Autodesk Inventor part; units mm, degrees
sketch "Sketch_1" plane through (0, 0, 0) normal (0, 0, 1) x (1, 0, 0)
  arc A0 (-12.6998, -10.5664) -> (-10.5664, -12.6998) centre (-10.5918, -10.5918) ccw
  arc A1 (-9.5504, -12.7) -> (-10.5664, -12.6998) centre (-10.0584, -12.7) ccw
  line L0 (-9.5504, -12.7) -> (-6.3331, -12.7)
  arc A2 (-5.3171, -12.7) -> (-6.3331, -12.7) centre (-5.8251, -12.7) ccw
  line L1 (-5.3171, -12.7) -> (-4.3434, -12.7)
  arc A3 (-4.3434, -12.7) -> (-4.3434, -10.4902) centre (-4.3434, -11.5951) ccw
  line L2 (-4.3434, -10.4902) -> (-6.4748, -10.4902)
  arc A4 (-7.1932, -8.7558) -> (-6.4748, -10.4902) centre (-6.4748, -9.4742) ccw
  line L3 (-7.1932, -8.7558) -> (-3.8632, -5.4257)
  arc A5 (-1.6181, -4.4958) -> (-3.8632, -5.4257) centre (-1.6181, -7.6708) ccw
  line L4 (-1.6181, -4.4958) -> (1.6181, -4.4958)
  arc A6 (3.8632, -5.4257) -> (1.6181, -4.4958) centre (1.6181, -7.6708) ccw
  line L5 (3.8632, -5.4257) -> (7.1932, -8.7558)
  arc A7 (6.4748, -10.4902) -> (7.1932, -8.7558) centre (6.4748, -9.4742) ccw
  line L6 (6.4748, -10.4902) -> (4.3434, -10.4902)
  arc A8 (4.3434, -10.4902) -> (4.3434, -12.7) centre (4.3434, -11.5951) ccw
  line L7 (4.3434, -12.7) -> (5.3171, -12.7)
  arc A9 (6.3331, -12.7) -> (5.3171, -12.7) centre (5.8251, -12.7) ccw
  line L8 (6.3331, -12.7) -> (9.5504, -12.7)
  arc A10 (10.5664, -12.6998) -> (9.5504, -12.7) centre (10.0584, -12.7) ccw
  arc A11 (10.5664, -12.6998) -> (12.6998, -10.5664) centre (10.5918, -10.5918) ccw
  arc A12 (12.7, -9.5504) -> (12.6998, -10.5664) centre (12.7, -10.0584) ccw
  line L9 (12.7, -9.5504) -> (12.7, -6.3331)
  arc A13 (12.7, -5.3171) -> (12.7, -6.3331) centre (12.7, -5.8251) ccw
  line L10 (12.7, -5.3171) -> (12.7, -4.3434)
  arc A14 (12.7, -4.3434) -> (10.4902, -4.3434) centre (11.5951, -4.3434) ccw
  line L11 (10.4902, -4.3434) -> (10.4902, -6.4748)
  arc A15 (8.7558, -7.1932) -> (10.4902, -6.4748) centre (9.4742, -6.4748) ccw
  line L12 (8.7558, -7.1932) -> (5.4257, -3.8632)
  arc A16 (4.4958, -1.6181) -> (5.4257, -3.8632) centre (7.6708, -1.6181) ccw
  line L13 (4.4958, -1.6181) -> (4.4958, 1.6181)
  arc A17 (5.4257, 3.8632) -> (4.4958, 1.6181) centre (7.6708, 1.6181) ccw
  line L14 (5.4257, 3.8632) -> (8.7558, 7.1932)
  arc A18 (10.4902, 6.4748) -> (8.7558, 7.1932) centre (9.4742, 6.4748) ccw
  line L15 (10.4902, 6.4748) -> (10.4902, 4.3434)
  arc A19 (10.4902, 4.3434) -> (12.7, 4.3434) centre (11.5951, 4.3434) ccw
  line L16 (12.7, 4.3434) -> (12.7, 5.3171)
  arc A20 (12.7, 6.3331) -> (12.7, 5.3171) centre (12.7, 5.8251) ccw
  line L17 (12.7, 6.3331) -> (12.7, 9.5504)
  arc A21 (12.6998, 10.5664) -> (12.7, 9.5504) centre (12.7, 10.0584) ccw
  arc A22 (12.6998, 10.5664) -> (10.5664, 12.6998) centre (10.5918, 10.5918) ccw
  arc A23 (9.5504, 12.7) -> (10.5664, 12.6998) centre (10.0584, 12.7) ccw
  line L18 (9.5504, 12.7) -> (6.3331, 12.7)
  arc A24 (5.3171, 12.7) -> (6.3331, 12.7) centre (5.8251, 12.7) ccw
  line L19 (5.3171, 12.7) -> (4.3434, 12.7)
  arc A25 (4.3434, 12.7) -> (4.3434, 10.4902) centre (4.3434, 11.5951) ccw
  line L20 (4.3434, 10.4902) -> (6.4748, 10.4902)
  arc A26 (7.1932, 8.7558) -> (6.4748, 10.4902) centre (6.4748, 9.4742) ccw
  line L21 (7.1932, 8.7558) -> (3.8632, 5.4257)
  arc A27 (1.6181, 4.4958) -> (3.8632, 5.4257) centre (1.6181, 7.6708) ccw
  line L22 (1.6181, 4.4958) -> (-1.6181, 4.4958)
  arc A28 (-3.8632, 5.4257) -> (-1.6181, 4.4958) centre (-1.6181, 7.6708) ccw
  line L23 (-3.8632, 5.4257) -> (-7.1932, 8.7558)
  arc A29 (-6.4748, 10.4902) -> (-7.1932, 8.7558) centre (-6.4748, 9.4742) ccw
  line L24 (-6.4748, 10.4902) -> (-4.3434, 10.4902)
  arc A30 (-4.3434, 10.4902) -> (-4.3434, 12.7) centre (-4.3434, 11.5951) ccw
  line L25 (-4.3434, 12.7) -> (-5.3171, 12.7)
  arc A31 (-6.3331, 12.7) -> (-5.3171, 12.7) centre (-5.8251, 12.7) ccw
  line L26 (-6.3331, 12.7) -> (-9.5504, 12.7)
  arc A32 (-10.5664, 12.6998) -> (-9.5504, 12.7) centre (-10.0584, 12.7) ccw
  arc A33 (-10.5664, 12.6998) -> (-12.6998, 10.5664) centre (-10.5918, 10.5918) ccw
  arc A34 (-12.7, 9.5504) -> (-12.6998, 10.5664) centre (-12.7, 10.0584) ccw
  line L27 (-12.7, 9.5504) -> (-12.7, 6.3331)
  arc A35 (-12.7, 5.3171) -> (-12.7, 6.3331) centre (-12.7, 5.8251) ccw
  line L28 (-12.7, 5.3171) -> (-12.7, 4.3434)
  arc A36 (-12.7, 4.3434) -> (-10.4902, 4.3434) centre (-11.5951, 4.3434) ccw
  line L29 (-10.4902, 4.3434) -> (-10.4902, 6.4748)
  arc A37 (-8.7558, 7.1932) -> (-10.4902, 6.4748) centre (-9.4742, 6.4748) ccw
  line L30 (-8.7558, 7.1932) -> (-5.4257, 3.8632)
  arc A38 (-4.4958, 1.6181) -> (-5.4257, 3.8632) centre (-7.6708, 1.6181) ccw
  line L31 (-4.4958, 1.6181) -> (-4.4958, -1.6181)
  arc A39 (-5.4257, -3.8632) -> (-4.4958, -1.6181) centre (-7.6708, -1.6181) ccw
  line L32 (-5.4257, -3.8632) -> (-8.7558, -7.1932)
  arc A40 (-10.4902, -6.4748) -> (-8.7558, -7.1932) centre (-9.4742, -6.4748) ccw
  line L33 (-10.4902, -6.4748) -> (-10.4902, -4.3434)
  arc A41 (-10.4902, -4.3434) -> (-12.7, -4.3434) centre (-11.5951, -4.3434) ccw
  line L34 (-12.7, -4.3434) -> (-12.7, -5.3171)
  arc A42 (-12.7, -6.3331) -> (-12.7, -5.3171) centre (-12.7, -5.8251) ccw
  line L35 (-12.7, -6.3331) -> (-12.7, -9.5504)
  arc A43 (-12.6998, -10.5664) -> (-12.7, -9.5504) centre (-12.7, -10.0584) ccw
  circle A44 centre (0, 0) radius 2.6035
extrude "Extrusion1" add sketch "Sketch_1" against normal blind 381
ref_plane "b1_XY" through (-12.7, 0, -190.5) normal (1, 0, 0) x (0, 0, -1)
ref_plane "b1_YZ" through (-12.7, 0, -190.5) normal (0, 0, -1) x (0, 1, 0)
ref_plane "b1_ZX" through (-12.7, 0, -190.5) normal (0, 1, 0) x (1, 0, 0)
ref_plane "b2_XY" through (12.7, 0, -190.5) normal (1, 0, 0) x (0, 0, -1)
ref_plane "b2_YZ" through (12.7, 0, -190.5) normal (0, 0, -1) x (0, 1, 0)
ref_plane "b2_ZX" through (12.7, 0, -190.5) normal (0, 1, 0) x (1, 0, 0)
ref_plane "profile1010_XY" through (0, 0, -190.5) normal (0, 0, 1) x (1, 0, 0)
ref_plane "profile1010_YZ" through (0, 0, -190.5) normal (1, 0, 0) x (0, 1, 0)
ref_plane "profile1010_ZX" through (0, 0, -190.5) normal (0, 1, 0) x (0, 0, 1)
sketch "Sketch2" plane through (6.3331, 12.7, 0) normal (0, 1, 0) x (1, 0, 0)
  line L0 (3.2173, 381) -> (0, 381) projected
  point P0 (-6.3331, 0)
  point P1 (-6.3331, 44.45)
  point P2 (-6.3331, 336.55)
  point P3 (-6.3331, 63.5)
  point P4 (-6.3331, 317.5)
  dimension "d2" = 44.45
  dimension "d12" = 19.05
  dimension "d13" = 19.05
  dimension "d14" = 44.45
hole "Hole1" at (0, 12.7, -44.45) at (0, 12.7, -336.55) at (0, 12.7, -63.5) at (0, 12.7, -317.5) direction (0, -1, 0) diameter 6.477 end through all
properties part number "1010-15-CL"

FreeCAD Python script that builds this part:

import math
import FreeCAD as App
import Part
import Sketcher
from FreeCAD import Vector
Q = App.Units.Quantity

doc = App.newDocument("Part")
body = doc.addObject("PartDesign::Body", "Body")

# Sketch on XY plane
sketch1 = body.newObject("Sketcher::SketchObject", "Sketch")
sketch1.AttachmentSupport = (doc.getObject("XY_Plane"), [""])
sketch1.MapMode = "FlatFace"
sketch1.addGeometry([
    Part.ArcOfCircle(Part.Circle(Vector(-12.7, -10.1, 0), Vector(0, 0, 1), 0.5), math.radians(-90), math.radians(90)),  # 0
    Part.ArcOfCircle(Part.Circle(Vector(-10.6, -10.6, 0), Vector(0, 0, 1), 2.1), math.radians(179), math.radians(271)),  # 1
    Part.ArcOfCircle(Part.Circle(Vector(-10.1, -12.7, 0), Vector(0, 0, 1), 0.5), math.radians(0), math.radians(180)),  # 2
    Part.LineSegment(Vector(-9.6, -12.7, 0), Vector(-6.3, -12.7, 0)),  # 3
    Part.ArcOfCircle(Part.Circle(Vector(-5.8, -12.7, 0), Vector(0, 0, 1), 0.5), math.radians(0), math.radians(180)),  # 4
    Part.LineSegment(Vector(-5.3, -12.7, 0), Vector(-4.3, -12.7, 0)),  # 5
    Part.ArcOfCircle(Part.Circle(Vector(-4.3, -11.6, 0), Vector(0, 0, 1), 1.1), math.radians(-90), math.radians(90)),  # 6
    Part.LineSegment(Vector(-4.3, -10.5, 0), Vector(-6.5, -10.5, 0)),  # 7
    Part.ArcOfCircle(Part.Circle(Vector(-6.5, -9.5, 0), Vector(0, 0, 1), 1), math.radians(135), math.radians(270)),  # 8
    Part.LineSegment(Vector(-7.2, -8.8, 0), Vector(-3.9, -5.4, 0)),  # 9
    Part.ArcOfCircle(Part.Circle(Vector(-1.6, -7.7, 0), Vector(0, 0, 1), 3.2), math.radians(90), math.radians(135)),  # 10
    Part.LineSegment(Vector(-1.6, -4.5, 0), Vector(1.6, -4.5, 0)),  # 11
    Part.ArcOfCircle(Part.Circle(Vector(1.6, -7.7, 0), Vector(0, 0, 1), 3.2), math.radians(45), math.radians(90)),  # 12
    Part.LineSegment(Vector(3.9, -5.4, 0), Vector(7.2, -8.8, 0)),  # 13
    Part.ArcOfCircle(Part.Circle(Vector(6.5, -9.5, 0), Vector(0, 0, 1), 1), math.radians(-90), math.radians(45)),  # 14
    Part.LineSegment(Vector(6.5, -10.5, 0), Vector(4.3, -10.5, 0)),  # 15
    Part.ArcOfCircle(Part.Circle(Vector(4.3, -11.6, 0), Vector(0, 0, 1), 1.1), math.radians(90), math.radians(270)),  # 16
    Part.LineSegment(Vector(4.3, -12.7, 0), Vector(5.3, -12.7, 0)),  # 17
    Part.ArcOfCircle(Part.Circle(Vector(5.8, -12.7, 0), Vector(0, 0, 1), 0.5), math.radians(0), math.radians(180)),  # 18
    Part.LineSegment(Vector(6.3, -12.7, 0), Vector(9.6, -12.7, 0)),  # 19
    Part.ArcOfCircle(Part.Circle(Vector(10.1, -12.7, 0), Vector(0, 0, 1), 0.5), math.radians(0), math.radians(180)),  # 20
    Part.ArcOfCircle(Part.Circle(Vector(10.6, -10.6, 0), Vector(0, 0, 1), 2.1), math.radians(-91), math.radians(1)),  # 21
    Part.ArcOfCircle(Part.Circle(Vector(12.7, -10.1, 0), Vector(0, 0, 1), 0.5), math.radians(90), math.radians(270)),  # 22
    Part.LineSegment(Vector(12.7, -9.6, 0), Vector(12.7, -6.3, 0)),  # 23
    Part.ArcOfCircle(Part.Circle(Vector(12.7, -5.8, 0), Vector(0, 0, 1), 0.5), math.radians(90), math.radians(270)),  # 24
    Part.LineSegment(Vector(12.7, -5.3, 0), Vector(12.7, -4.3, 0)),  # 25
    Part.ArcOfCircle(Part.Circle(Vector(11.6, -4.3, 0), Vector(0, 0, 1), 1.1), math.radians(0), math.radians(180)),  # 26
    Part.LineSegment(Vector(10.5, -4.3, 0), Vector(10.5, -6.5, 0)),  # 27
    Part.ArcOfCircle(Part.Circle(Vector(9.5, -6.5, 0), Vector(0, 0, 1), 1), math.radians(-135), math.radians(0)),  # 28
    Part.LineSegment(Vector(8.8, -7.2, 0), Vector(5.4, -3.9, 0)),  # 29
    Part.ArcOfCircle(Part.Circle(Vector(7.7, -1.6, 0), Vector(0, 0, 1), 3.2), math.radians(180), math.radians(225)),  # 30
    Part.LineSegment(Vector(4.5, -1.6, 0), Vector(4.5, 1.6, 0)),  # 31
    Part.ArcOfCircle(Part.Circle(Vector(7.7, 1.6, 0), Vector(0, 0, 1), 3.2), math.radians(135), math.radians(180)),  # 32
    Part.LineSegment(Vector(5.4, 3.9, 0), Vector(8.8, 7.2, 0)),  # 33
    Part.ArcOfCircle(Part.Circle(Vector(9.5, 6.5, 0), Vector(0, 0, 1), 1), math.radians(0), math.radians(135)),  # 34
    Part.LineSegment(Vector(10.5, 6.5, 0), Vector(10.5, 4.3, 0)),  # 35
    Part.ArcOfCircle(Part.Circle(Vector(11.6, 4.3, 0), Vector(0, 0, 1), 1.1), math.radians(180), math.radians(360)),  # 36
    Part.LineSegment(Vector(12.7, 4.3, 0), Vector(12.7, 5.3, 0)),  # 37
    Part.ArcOfCircle(Part.Circle(Vector(12.7, 5.8, 0), Vector(0, 0, 1), 0.5), math.radians(90), math.radians(270)),  # 38
    Part.LineSegment(Vector(12.7, 6.3, 0), Vector(12.7, 9.6, 0)),  # 39
    Part.ArcOfCircle(Part.Circle(Vector(12.7, 10.1, 0), Vector(0, 0, 1), 0.5), math.radians(90), math.radians(270)),  # 40
    Part.ArcOfCircle(Part.Circle(Vector(10.6, 10.6, 0), Vector(0, 0, 1), 2.1), math.radians(-1), math.radians(91)),  # 41
    Part.ArcOfCircle(Part.Circle(Vector(10.1, 12.7, 0), Vector(0, 0, 1), 0.5), math.radians(180), math.radians(360)),  # 42
    Part.LineSegment(Vector(9.6, 12.7, 0), Vector(6.3, 12.7, 0)),  # 43
    Part.ArcOfCircle(Part.Circle(Vector(5.8, 12.7, 0), Vector(0, 0, 1), 0.5), math.radians(180), math.radians(360)),  # 44
    Part.LineSegment(Vector(5.3, 12.7, 0), Vector(4.3, 12.7, 0)),  # 45
    Part.ArcOfCircle(Part.Circle(Vector(4.3, 11.6, 0), Vector(0, 0, 1), 1.1), math.radians(90), math.radians(270)),  # 46
    Part.LineSegment(Vector(4.3, 10.5, 0), Vector(6.5, 10.5, 0)),  # 47
    Part.ArcOfCircle(Part.Circle(Vector(6.5, 9.5, 0), Vector(0, 0, 1), 1), math.radians(-45), math.radians(90)),  # 48
    Part.LineSegment(Vector(7.2, 8.8, 0), Vector(3.9, 5.4, 0)),  # 49
    Part.ArcOfCircle(Part.Circle(Vector(1.6, 7.7, 0), Vector(0, 0, 1), 3.2), math.radians(-90), math.radians(-45)),  # 50
    Part.LineSegment(Vector(1.6, 4.5, 0), Vector(-1.6, 4.5, 0)),  # 51
    Part.ArcOfCircle(Part.Circle(Vector(-1.6, 7.7, 0), Vector(0, 0, 1), 3.2), math.radians(-135), math.radians(-90)),  # 52
    Part.LineSegment(Vector(-3.9, 5.4, 0), Vector(-7.2, 8.8, 0)),  # 53
    Part.ArcOfCircle(Part.Circle(Vector(-6.5, 9.5, 0), Vector(0, 0, 1), 1), math.radians(90), math.radians(225)),  # 54
    Part.LineSegment(Vector(-6.5, 10.5, 0), Vector(-4.3, 10.5, 0)),  # 55
    Part.ArcOfCircle(Part.Circle(Vector(-4.3, 11.6, 0), Vector(0, 0, 1), 1.1), math.radians(-90), math.radians(90)),  # 56
    Part.LineSegment(Vector(-4.3, 12.7, 0), Vector(-5.3, 12.7, 0)),  # 57
    Part.ArcOfCircle(Part.Circle(Vector(-5.8, 12.7, 0), Vector(0, 0, 1), 0.5), math.radians(180), math.radians(360)),  # 58
    Part.LineSegment(Vector(-6.3, 12.7, 0), Vector(-9.6, 12.7, 0)),  # 59
    Part.ArcOfCircle(Part.Circle(Vector(-10.1, 12.7, 0), Vector(0, 0, 1), 0.5), math.radians(-180), math.radians(0)),  # 60
    Part.ArcOfCircle(Part.Circle(Vector(-10.6, 10.6, 0), Vector(0, 0, 1), 2.1), math.radians(89), math.radians(181)),  # 61
    Part.ArcOfCircle(Part.Circle(Vector(-12.7, 10.1, 0), Vector(0, 0, 1), 0.5), math.radians(-90), math.radians(90)),  # 62
    Part.LineSegment(Vector(-12.7, 9.6, 0), Vector(-12.7, 6.3, 0)),  # 63
    Part.ArcOfCircle(Part.Circle(Vector(-12.7, 5.8, 0), Vector(0, 0, 1), 0.5), math.radians(-90), math.radians(90)),  # 64
    Part.LineSegment(Vector(-12.7, 5.3, 0), Vector(-12.7, 4.3, 0)),  # 65
    Part.ArcOfCircle(Part.Circle(Vector(-11.6, 4.3, 0), Vector(0, 0, 1), 1.1), math.radians(180), math.radians(360)),  # 66
    Part.LineSegment(Vector(-10.5, 4.3, 0), Vector(-10.5, 6.5, 0)),  # 67
    Part.ArcOfCircle(Part.Circle(Vector(-9.5, 6.5, 0), Vector(0, 0, 1), 1), math.radians(45), math.radians(180)),  # 68
    Part.LineSegment(Vector(-8.8, 7.2, 0), Vector(-5.4, 3.9, 0)),  # 69
    Part.ArcOfCircle(Part.Circle(Vector(-7.7, 1.6, 0), Vector(0, 0, 1), 3.2), math.radians(0), math.radians(45)),  # 70
    Part.LineSegment(Vector(-4.5, 1.6, 0), Vector(-4.5, -1.6, 0)),  # 71
    Part.ArcOfCircle(Part.Circle(Vector(-7.7, -1.6, 0), Vector(0, 0, 1), 3.2), math.radians(-45), math.radians(0)),  # 72
    Part.LineSegment(Vector(-5.4, -3.9, 0), Vector(-8.8, -7.2, 0)),  # 73
    Part.ArcOfCircle(Part.Circle(Vector(-9.5, -6.5, 0), Vector(0, 0, 1), 1), math.radians(180), math.radians(315)),  # 74
    Part.LineSegment(Vector(-10.5, -6.5, 0), Vector(-10.5, -4.3, 0)),  # 75
    Part.ArcOfCircle(Part.Circle(Vector(-11.6, -4.3, 0), Vector(0, 0, 1), 1.1), math.radians(0), math.radians(180)),  # 76
    Part.LineSegment(Vector(-12.7, -4.3, 0), Vector(-12.7, -5.3, 0)),  # 77
    Part.ArcOfCircle(Part.Circle(Vector(-12.7, -5.8, 0), Vector(0, 0, 1), 0.5), math.radians(-90), math.radians(90)),  # 78
    Part.LineSegment(Vector(-12.7, -6.3, 0), Vector(-12.7, -9.6, 0)),  # 79
    Part.Circle(Vector(0, 0, 0), Vector(0, 0, 1), 2.6),  # 80
], False)
sketch1.addConstraint([
    Sketcher.Constraint("Coincident", 0, 1, 1, 1),
    Sketcher.Constraint("Coincident", 1, 2, 2, 2),
    Sketcher.Constraint("Coincident", 2, 1, 3, 1),
    Sketcher.Constraint("Coincident", 3, 2, 4, 2),
    Sketcher.Constraint("Coincident", 4, 1, 5, 1),
    Sketcher.Constraint("Tangent", 5, 2, 6, 1),
    Sketcher.Constraint("Tangent", 6, 2, 7, 1),
    Sketcher.Constraint("Tangent", 7, 2, 8, 2),
    Sketcher.Constraint("Tangent", 8, 1, 9, 1),
    Sketcher.Constraint("Tangent", 9, 2, 10, 2),
    Sketcher.Constraint("Tangent", 10, 1, 11, 1),
    Sketcher.Constraint("Tangent", 11, 2, 12, 2),
    Sketcher.Constraint("Tangent", 12, 1, 13, 1),
    Sketcher.Constraint("Tangent", 13, 2, 14, 2),
    Sketcher.Constraint("Tangent", 14, 1, 15, 1),
    Sketcher.Constraint("Tangent", 15, 2, 16, 1),
    Sketcher.Constraint("Tangent", 16, 2, 17, 1),
    Sketcher.Constraint("Coincident", 17, 2, 18, 2),
    Sketcher.Constraint("Coincident", 18, 1, 19, 1),
    Sketcher.Constraint("Coincident", 19, 2, 20, 2),
    Sketcher.Constraint("Coincident", 20, 1, 21, 1),
    Sketcher.Constraint("Coincident", 21, 2, 22, 2),
    Sketcher.Constraint("Coincident", 22, 1, 23, 1),
    Sketcher.Constraint("Coincident", 23, 2, 24, 2),
    Sketcher.Constraint("Coincident", 24, 1, 25, 1),
    Sketcher.Constraint("Tangent", 25, 2, 26, 1),
    Sketcher.Constraint("Tangent", 26, 2, 27, 1),
    Sketcher.Constraint("Tangent", 27, 2, 28, 2),
    Sketcher.Constraint("Tangent", 28, 1, 29, 1),
    Sketcher.Constraint("Tangent", 29, 2, 30, 2),
    Sketcher.Constraint("Tangent", 30, 1, 31, 1),
    Sketcher.Constraint("Tangent", 31, 2, 32, 2),
    Sketcher.Constraint("Tangent", 32, 1, 33, 1),
    Sketcher.Constraint("Tangent", 33, 2, 34, 2),
    Sketcher.Constraint("Tangent", 34, 1, 35, 1),
    Sketcher.Constraint("Tangent", 35, 2, 36, 1),
    Sketcher.Constraint("Tangent", 36, 2, 37, 1),
    Sketcher.Constraint("Coincident", 37, 2, 38, 2),
    Sketcher.Constraint("Coincident", 38, 1, 39, 1),
    Sketcher.Constraint("Coincident", 39, 2, 40, 2),
    Sketcher.Constraint("Coincident", 40, 1, 41, 1),
    Sketcher.Constraint("Coincident", 41, 2, 42, 2),
    Sketcher.Constraint("Coincident", 42, 1, 43, 1),
    Sketcher.Constraint("Coincident", 43, 2, 44, 2),
    Sketcher.Constraint("Coincident", 44, 1, 45, 1),
    Sketcher.Constraint("Tangent", 45, 2, 46, 1),
    Sketcher.Constraint("Tangent", 46, 2, 47, 1),
    Sketcher.Constraint("Tangent", 47, 2, 48, 2),
    Sketcher.Constraint("Tangent", 48, 1, 49, 1),
    Sketcher.Constraint("Tangent", 49, 2, 50, 2),
    Sketcher.Constraint("Tangent", 50, 1, 51, 1),
    Sketcher.Constraint("Tangent", 51, 2, 52, 2),
    Sketcher.Constraint("Tangent", 52, 1, 53, 1),
    Sketcher.Constraint("Tangent", 53, 2, 54, 2),
    Sketcher.Constraint("Tangent", 54, 1, 55, 1),
    Sketcher.Constraint("Tangent", 55, 2, 56, 1),
    Sketcher.Constraint("Tangent", 56, 2, 57, 1),
    Sketcher.Constraint("Coincident", 57, 2, 58, 2),
    Sketcher.Constraint("Coincident", 58, 1, 59, 1),
    Sketcher.Constraint("Coincident", 59, 2, 60, 2),
    Sketcher.Constraint("Coincident", 60, 1, 61, 1),
    Sketcher.Constraint("Coincident", 61, 2, 62, 2),
    Sketcher.Constraint("Coincident", 62, 1, 63, 1),
    Sketcher.Constraint("Coincident", 63, 2, 64, 2),
    Sketcher.Constraint("Coincident", 64, 1, 65, 1),
    Sketcher.Constraint("Tangent", 65, 2, 66, 1),
    Sketcher.Constraint("Tangent", 66, 2, 67, 1),
    Sketcher.Constraint("Tangent", 67, 2, 68, 2),
    Sketcher.Constraint("Tangent", 68, 1, 69, 1),
    Sketcher.Constraint("Tangent", 69, 2, 70, 2),
    Sketcher.Constraint("Tangent", 70, 1, 71, 1),
    Sketcher.Constraint("Tangent", 71, 2, 72, 2),
    Sketcher.Constraint("Tangent", 72, 1, 73, 1),
    Sketcher.Constraint("Tangent", 73, 2, 74, 2),
    Sketcher.Constraint("Tangent", 74, 1, 75, 1),
    Sketcher.Constraint("Tangent", 75, 2, 76, 1),
    Sketcher.Constraint("Tangent", 76, 2, 77, 1),
    Sketcher.Constraint("Coincident", 77, 2, 78, 2),
    Sketcher.Constraint("Coincident", 78, 1, 79, 1),
    Sketcher.Constraint("Coincident", 79, 2, 0, 2),
    Sketcher.Constraint("Horizontal", 3),
    Sketcher.Constraint("Horizontal", 5),
    Sketcher.Constraint("Horizontal", 7),
    Sketcher.Constraint("Horizontal", 11),
    Sketcher.Constraint("Horizontal", 15),
    Sketcher.Constraint("Horizontal", 17),
    Sketcher.Constraint("Horizontal", 19),
    Sketcher.Constraint("Vertical", 23),
    Sketcher.Constraint("Vertical", 25),
    Sketcher.Constraint("Vertical", 27),
    Sketcher.Constraint("Vertical", 31),
    Sketcher.Constraint("Vertical", 35),
    Sketcher.Constraint("Vertical", 37),
    Sketcher.Constraint("Vertical", 39),
    Sketcher.Constraint("Horizontal", 43),
    Sketcher.Constraint("Horizontal", 45),
    Sketcher.Constraint("Horizontal", 47),
    Sketcher.Constraint("Horizontal", 51),
    Sketcher.Constraint("Horizontal", 55),
    Sketcher.Constraint("Horizontal", 57),
    Sketcher.Constraint("Horizontal", 59),
    Sketcher.Constraint("Vertical", 63),
    Sketcher.Constraint("Vertical", 65),
    Sketcher.Constraint("Vertical", 67),
    Sketcher.Constraint("Vertical", 71),
    Sketcher.Constraint("Vertical", 75),
    Sketcher.Constraint("Vertical", 77),
    Sketcher.Constraint("Vertical", 79),
    Sketcher.Constraint("Coincident", 80, 3, -1, 1),
    Sketcher.Constraint("Equal", 0, 2),
    Sketcher.Constraint("Equal", 2, 4),
    Sketcher.Constraint("Equal", 10, 12),
    Sketcher.Constraint("Equal", 8, 14),
    Sketcher.Constraint("Equal", 6, 16),
    Sketcher.Constraint("Equal", 4, 18),
    Sketcher.Constraint("Equal", 18, 20),
    Sketcher.Constraint("Equal", 1, 21),
    Sketcher.Constraint("Equal", 20, 22),
    Sketcher.Constraint("Equal", 22, 24),
    Sketcher.Constraint("Equal", 16, 26),
    Sketcher.Constraint("Equal", 14, 28),
    Sketcher.Constraint("Equal", 12, 30),
    Sketcher.Constraint("Equal", 30, 32),
    Sketcher.Constraint("Equal", 28, 34),
    Sketcher.Constraint("Equal", 26, 36),
    Sketcher.Constraint("Equal", 24, 38),
    Sketcher.Constraint("Equal", 38, 40),
    Sketcher.Constraint("Equal", 21, 41),
    Sketcher.Constraint("Equal", 40, 42),
    Sketcher.Constraint("Equal", 42, 44),
    Sketcher.Constraint("Equal", 36, 46),
    Sketcher.Constraint("Equal", 34, 48),
    Sketcher.Constraint("Equal", 32, 50),
    Sketcher.Constraint("Equal", 50, 52),
    Sketcher.Constraint("Equal", 48, 54),
    Sketcher.Constraint("Equal", 46, 56),
    Sketcher.Constraint("Equal", 44, 58),
    Sketcher.Constraint("Equal", 58, 60),
    Sketcher.Constraint("Equal", 41, 61),
    Sketcher.Constraint("Equal", 60, 62),
    Sketcher.Constraint("Equal", 62, 64),
    Sketcher.Constraint("Equal", 56, 66),
    Sketcher.Constraint("Equal", 54, 68),
    Sketcher.Constraint("Equal", 52, 70),
    Sketcher.Constraint("Equal", 70, 72),
    Sketcher.Constraint("Equal", 68, 74),
    Sketcher.Constraint("Equal", 66, 76),
    Sketcher.Constraint("Equal", 64, 78),
    Sketcher.Constraint("Symmetric", 0, 3, 40, 3, -1, 1),
    Sketcher.Constraint("Symmetric", 1, 3, 41, 3, -1, 1),
    Sketcher.Constraint("Symmetric", 2, 3, 42, 3, -1, 1),
    Sketcher.Constraint("Symmetric", 4, 3, 44, 3, -1, 1),
    Sketcher.Constraint("Symmetric", 6, 3, 46, 3, -1, 1),
    Sketcher.Constraint("Symmetric", 10, 3, 50, 3, -1, 1),
    Sketcher.Constraint("Symmetric", 14, 3, 54, 3, -1, 1),
    Sketcher.Constraint("Symmetric", 18, 3, 58, 3, -1, 1),
    Sketcher.Constraint("Symmetric", 20, 3, 60, 3, -1, 1),
    Sketcher.Constraint("Symmetric", 21, 3, 61, 3, -1, 1),
    Sketcher.Constraint("Symmetric", 22, 3, 62, 3, -1, 1),
    Sketcher.Constraint("Symmetric", 24, 3, 64, 3, -1, 1),
    Sketcher.Constraint("Symmetric", 26, 3, 66, 3, -1, 1),
    Sketcher.Constraint("Symmetric", 30, 3, 70, 3, -1, 1),
    Sketcher.Constraint("Symmetric", 34, 3, 74, 3, -1, 1),
    Sketcher.Constraint("Symmetric", 38, 3, 78, 3, -1, 1),
    Sketcher.Constraint("Symmetric", 8, 3, 14, 3, -2),
    Sketcher.Constraint("Symmetric", 4, 3, 18, 3, -2),
    Sketcher.Constraint("Symmetric", 2, 3, 20, 3, -2),
    Sketcher.Constraint("Symmetric", 1, 3, 21, 3, -2),
    Sketcher.Constraint("Symmetric", 0, 3, 22, 3, -2),
    Sketcher.Constraint("Symmetric", 38, 3, 64, 3, -2),
    Sketcher.Constraint("Symmetric", 36, 3, 66, 3, -2),
    Sketcher.Constraint("Symmetric", 49, 2, 52, 1, -2),
    Sketcher.Constraint("Symmetric", 33, 2, 68, 1, -2),
    Sketcher.Constraint("Symmetric", 29, 2, 72, 1, -2),
    Sketcher.Constraint("Perpendicular", 9, 13),
    Sketcher.Constraint("Parallel", 13, 29),
    Sketcher.Constraint("Perpendicular", 29, 33),
    Sketcher.Constraint("Horizontal", 2, 3, 4, 3),
    Sketcher.Constraint("Horizontal", 26, 3, 76, 3),
    Sketcher.Constraint("Horizontal", 20, 3, 1, 2),
    Sketcher.Constraint("Horizontal", 1, 2, 2, 1),
    Sketcher.Constraint("Horizontal", 3, 2, 4, 1),
    Sketcher.Constraint("Horizontal", 17, 2, 18, 1),
    Sketcher.Constraint("Horizontal", 41, 2, 42, 1),
    Sketcher.Constraint("Horizontal", 57, 2, 58, 1),
    Sketcher.Constraint("Vertical", 22, 3, 24, 3),
    Sketcher.Constraint("Vertical", 16, 3, 46, 3),
    Sketcher.Constraint("Vertical", 6, 3, 56, 3),
    Sketcher.Constraint("Vertical", 78, 3, 0, 1),
    Sketcher.Constraint("Vertical", 21, 2, 22, 1),
    Sketcher.Constraint("Vertical", 23, 2, 24, 1),
    Sketcher.Constraint("Vertical", 37, 2, 38, 1),
    Sketcher.Constraint("Vertical", 61, 2, 62, 1),
    Sketcher.Constraint("Vertical", 77, 2, 78, 1),
    Sketcher.Constraint("Equal", 59, 23),
    Sketcher.Constraint("Equal", 57, 25),
    Sketcher.Constraint("Equal", 55, 27),
    Sketcher.Constraint("Equal", 51, 31),
    Sketcher.Constraint("Equal", 13, 29),
    Sketcher.Constraint("Radius", 0, Q("0.02 in")),
    Sketcher.Constraint("Radius", 8, Q("0.04 in")),
    Sketcher.Constraint("Diameter", 80, Q("0.205 in")),
    Sketcher.Constraint("Radius", 1, Q("0.083 in")),
    Sketcher.Constraint("Radius", 10, Q("0.125 in")),
    Sketcher.Constraint("DistanceX", 0, 3, -1, 1, Q("0.5 in")),
    Sketcher.Constraint("DistanceY", 2, 3, -1, 1, Q("0.5 in")),
    Sketcher.Constraint("Radius", 6, Q("0.0435 in")),
    Sketcher.Constraint("DistanceX", 11, 1, 11, 2, Q("0.1274 in")),
    Sketcher.Constraint("DistanceY", 0, 3, -1, 1, Q("0.396 in")),
    Sketcher.Constraint("DistanceX", 6, 3, -1, 1, Q("0.171 in")),
    Sketcher.Constraint("DistanceY", 10, 3, -1, 1, Q("0.302 in")),
    Sketcher.Constraint("DistanceX", 3, 1, 3, 2, Q("3.2173 mm")),
])
pad1 = body.newObject("PartDesign::Pad", "Pad")
pad1.Profile = sketch1
pad1.Length = Q("15 in")
pad1.Reversed = True

# Sketch on XZ plane
sketch2 = body.newObject("Sketcher::SketchObject", "Sketch001")
sketch2.AttachmentSupport = (doc.getObject("XZ_Plane"), [""])
sketch2.MapMode = "FlatFace"
sketch2.AttachmentOffset = App.Placement(Vector(0, 0, -0.5 * 25.4), App.Rotation())
sketch2.addGeometry([
    Part.Circle(Vector(0, -44.5, 0), Vector(0, 0, 1), 3.2),
    Part.Circle(Vector(0, -336.6, 0), Vector(0, 0, 1), 3.2),
    Part.Circle(Vector(0, -63.5, 0), Vector(0, 0, 1), 3.2),
    Part.Circle(Vector(0, -317.5, 0), Vector(0, 0, 1), 3.2),
], False)
sketch2.addConstraint([
    Sketcher.Constraint("Equal", 0, 1),
    Sketcher.Constraint("Equal", 1, 2),
    Sketcher.Constraint("Equal", 2, 3),
    Sketcher.Constraint("PointOnObject", 0, 3, -2),
    Sketcher.Constraint("PointOnObject", 1, 3, -2),
    Sketcher.Constraint("PointOnObject", 2, 3, -2),
    Sketcher.Constraint("PointOnObject", 3, 3, -2),
    Sketcher.Constraint("Diameter", 0, Q("0.255 in")),
    Sketcher.Constraint("DistanceY", 3, 3, 2, 3, Q("10 in")),
    Sketcher.Constraint("DistanceY", 2, 3, -1, 1, Q("2.5 in")),
    Sketcher.Constraint("DistanceY", 1, 3, 0, 3, Q("11.5 in")),
    Sketcher.Constraint("DistanceY", 0, 3, -1, 1, Q("1.75 in")),
])
doc.recompute()
hole = body.newObject("PartDesign::Hole", "Hole")
hole.Profile = sketch2
hole.ThreadType = "None"
hole.Diameter = Q("0.255 in")
hole.DepthType = "ThroughAll"
hole.Reversed = True

doc.recompute()
